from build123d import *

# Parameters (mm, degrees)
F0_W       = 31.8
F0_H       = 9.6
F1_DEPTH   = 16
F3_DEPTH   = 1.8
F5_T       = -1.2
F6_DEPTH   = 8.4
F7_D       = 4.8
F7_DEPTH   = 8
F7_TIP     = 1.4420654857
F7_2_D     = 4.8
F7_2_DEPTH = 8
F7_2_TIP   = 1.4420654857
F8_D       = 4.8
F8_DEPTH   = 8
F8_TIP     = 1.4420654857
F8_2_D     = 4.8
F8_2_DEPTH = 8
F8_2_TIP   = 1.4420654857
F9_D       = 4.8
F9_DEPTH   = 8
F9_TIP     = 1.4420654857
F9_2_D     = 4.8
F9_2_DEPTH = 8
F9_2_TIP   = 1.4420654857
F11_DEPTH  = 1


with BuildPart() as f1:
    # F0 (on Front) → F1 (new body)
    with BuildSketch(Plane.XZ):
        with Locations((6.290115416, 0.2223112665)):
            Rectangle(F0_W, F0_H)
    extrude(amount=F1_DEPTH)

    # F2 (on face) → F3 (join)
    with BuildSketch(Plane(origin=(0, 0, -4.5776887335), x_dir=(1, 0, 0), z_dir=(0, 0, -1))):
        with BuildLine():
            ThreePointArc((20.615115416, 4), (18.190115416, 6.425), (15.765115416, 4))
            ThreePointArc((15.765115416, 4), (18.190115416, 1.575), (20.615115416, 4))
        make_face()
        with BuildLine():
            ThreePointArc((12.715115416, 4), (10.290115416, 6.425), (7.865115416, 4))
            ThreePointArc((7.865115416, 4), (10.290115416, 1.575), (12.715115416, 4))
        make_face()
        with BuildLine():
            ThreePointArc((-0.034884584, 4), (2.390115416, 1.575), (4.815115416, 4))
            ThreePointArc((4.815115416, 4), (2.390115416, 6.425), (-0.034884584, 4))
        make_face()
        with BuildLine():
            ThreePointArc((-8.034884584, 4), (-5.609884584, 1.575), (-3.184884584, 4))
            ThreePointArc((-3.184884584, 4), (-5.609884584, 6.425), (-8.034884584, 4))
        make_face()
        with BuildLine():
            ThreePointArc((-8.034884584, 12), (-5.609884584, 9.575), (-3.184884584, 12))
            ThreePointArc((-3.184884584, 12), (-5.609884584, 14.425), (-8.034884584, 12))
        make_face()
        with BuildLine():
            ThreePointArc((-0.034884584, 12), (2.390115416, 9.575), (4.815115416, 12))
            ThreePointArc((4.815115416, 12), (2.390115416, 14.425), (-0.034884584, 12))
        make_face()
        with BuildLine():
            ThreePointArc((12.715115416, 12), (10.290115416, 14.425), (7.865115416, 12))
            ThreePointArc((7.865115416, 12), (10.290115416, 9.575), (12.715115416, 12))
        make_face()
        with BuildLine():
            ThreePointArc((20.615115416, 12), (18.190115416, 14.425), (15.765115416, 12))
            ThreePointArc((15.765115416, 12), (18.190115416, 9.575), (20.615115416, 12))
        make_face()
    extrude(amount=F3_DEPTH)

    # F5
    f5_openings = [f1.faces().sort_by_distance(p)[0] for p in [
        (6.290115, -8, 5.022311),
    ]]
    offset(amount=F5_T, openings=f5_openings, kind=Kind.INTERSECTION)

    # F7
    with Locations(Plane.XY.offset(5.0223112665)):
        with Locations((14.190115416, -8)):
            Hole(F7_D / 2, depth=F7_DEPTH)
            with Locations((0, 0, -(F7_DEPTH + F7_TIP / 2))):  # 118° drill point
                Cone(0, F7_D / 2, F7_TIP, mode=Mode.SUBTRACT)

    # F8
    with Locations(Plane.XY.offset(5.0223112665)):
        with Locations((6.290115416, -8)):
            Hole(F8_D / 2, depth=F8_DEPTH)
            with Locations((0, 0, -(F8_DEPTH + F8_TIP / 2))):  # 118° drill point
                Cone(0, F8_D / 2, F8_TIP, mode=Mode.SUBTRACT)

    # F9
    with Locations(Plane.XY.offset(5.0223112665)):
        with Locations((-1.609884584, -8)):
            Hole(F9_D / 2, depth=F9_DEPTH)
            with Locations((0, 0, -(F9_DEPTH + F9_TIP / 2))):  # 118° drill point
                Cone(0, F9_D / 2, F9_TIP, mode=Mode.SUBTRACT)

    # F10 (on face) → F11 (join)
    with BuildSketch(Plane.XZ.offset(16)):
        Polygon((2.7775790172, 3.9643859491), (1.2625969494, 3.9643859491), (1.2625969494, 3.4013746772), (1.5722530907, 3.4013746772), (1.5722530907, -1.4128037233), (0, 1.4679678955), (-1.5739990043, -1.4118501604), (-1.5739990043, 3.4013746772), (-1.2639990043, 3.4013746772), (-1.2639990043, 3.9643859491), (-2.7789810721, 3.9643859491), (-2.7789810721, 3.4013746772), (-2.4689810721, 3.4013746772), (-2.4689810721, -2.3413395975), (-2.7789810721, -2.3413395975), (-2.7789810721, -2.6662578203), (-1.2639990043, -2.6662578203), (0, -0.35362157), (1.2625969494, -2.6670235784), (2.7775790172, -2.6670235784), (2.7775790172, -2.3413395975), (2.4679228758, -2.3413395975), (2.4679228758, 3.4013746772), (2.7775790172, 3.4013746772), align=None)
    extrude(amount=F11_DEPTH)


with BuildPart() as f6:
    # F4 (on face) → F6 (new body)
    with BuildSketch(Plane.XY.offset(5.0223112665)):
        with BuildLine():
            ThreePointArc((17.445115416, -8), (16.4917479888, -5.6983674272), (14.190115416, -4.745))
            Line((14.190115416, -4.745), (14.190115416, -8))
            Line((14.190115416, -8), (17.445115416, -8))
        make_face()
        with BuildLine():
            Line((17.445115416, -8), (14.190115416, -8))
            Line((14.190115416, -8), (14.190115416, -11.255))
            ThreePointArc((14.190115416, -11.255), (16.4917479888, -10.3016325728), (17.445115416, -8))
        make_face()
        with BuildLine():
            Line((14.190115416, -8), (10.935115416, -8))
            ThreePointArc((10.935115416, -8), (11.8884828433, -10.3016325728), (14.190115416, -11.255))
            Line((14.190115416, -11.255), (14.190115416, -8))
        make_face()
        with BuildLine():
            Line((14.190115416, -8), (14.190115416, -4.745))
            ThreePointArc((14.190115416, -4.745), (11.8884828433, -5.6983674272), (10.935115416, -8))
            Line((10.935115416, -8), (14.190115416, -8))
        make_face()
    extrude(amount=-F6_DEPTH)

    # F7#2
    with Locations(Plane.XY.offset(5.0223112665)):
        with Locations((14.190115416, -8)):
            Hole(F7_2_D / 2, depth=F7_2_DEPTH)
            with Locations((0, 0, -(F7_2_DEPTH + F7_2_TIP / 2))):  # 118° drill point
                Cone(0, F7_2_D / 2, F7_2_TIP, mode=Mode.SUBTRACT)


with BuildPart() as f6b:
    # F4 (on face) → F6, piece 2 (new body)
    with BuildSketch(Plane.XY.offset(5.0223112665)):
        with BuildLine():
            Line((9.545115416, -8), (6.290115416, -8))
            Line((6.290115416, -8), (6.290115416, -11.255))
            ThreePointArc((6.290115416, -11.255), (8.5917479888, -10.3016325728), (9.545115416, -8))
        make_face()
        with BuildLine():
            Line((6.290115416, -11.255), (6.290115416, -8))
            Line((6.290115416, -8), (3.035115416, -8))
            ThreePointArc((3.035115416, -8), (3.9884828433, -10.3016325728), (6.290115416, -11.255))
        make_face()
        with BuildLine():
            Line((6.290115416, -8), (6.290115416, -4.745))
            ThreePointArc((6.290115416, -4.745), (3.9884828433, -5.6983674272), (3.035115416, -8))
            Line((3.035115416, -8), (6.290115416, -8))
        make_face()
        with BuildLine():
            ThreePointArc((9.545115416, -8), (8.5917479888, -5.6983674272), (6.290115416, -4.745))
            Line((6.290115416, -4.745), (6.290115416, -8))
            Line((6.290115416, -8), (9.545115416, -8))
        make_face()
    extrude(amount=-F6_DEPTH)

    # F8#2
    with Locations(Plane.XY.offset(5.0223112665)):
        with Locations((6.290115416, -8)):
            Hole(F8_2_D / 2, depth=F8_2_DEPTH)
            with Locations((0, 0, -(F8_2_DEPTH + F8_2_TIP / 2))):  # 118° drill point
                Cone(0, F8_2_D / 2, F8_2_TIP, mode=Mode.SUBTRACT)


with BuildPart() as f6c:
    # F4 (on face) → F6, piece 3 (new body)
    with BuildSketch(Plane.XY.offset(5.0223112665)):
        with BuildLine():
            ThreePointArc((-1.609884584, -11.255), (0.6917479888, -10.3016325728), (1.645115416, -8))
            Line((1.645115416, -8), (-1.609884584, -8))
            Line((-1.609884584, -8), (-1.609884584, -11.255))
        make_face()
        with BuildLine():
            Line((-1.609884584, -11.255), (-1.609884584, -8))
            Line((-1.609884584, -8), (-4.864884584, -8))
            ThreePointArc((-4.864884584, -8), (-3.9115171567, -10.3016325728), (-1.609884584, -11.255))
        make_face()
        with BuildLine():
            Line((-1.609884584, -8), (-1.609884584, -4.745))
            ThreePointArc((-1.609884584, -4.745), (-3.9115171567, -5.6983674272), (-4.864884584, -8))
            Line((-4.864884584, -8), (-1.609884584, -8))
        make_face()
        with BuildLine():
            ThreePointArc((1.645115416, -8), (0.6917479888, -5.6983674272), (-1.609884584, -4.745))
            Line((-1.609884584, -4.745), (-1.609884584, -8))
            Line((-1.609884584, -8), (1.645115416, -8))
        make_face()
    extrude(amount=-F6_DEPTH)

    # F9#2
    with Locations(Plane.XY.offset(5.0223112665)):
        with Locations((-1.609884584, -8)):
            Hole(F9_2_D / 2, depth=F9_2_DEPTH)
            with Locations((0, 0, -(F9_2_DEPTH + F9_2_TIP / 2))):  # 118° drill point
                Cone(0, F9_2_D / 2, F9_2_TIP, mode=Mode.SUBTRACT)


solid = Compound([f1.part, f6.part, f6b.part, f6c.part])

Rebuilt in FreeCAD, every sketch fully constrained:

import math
import FreeCAD as App
import Part
import Sketcher
from FreeCAD import Vector


def faces_at(feature, points):
    """Names of the faces that lie closest to the given points."""
    faces = feature.Shape.Faces
    near = lambda p: min(range(len(faces)), key=lambda i: faces[i].distToShape(Part.Vertex(*p))[0])
    return sorted({f"Face{near(p) + 1}" for p in points})


def add_polygon(sketch, points):
    """Adds a closed chain of lines whose ends are joined by coincident constraints."""
    first, n = sketch.GeometryCount, len(points)
    for a, b in zip(points, points[1:] + points[:1]):
        sketch.addGeometry(Part.LineSegment(App.Vector(*a, 0), App.Vector(*b, 0)), False)
    for i in range(n):
        sketch.addConstraint(Sketcher.Constraint("Coincident", first + i, 2, first + (i + 1) % n, 1))

doc = App.newDocument("Part")
body = doc.addObject("PartDesign::Body", "Body")

# Sketch on XZ plane
sketch1 = body.newObject("Sketcher::SketchObject", "Sketch")
sketch1.AttachmentSupport = (doc.getObject("XZ_Plane"), [""])
sketch1.MapMode = "FlatFace"
add_polygon(sketch1, [(-10, 5), (-10, -5), (22, -5), (22, 5)])  # lines 0-3
sketch1.addConstraint(Sketcher.Constraint("Vertical", 0))
sketch1.addConstraint(Sketcher.Constraint("Horizontal", 1))
sketch1.addConstraint(Sketcher.Constraint("Vertical", 2))
sketch1.addConstraint(Sketcher.Constraint("Horizontal", 3))
sketch1.addConstraint(Sketcher.Constraint("DistanceX", 1, 1, 1, 2, 31.8))
sketch1.addConstraint(Sketcher.Constraint("DistanceY", 0, 2, 0, 1, 9.6))
sketch1.addConstraint(Sketcher.Constraint("DistanceY", 0, 2, -1, 1, 4.577689))
sketch1.addConstraint(Sketcher.Constraint("DistanceX", 0, 2, -1, 1, 9.609885))
pad1 = body.newObject("PartDesign::Pad", "Pad")
pad1.Profile = sketch1
pad1.Length = 16

# Sketch on XY plane
sketch2 = body.newObject("Sketcher::SketchObject", "Sketch001")
sketch2.AttachmentSupport = (doc.getObject("XY_Plane"), [""])
sketch2.MapMode = "FlatFace"
sketch2.AttachmentOffset = App.Placement(Vector(0, 0, -4.577689), App.Rotation())
sketch2.addGeometry(Part.Circle(Vector(18.2, -4, 0), Vector(0, 0, 1), 2.4), False)
sketch2.addGeometry(Part.Circle(Vector(10.3, -4, 0), Vector(0, 0, 1), 2.4), False)
sketch2.addGeometry(Part.Circle(Vector(2.4, -4, 0), Vector(0, 0, 1), 2.4), False)
sketch2.addGeometry(Part.Circle(Vector(-5.6, -4, 0), Vector(0, 0, 1), 2.4), False)
sketch2.addGeometry(Part.Circle(Vector(-5.6, -12, 0), Vector(0, 0, 1), 2.4), False)
sketch2.addGeometry(Part.Circle(Vector(2.4, -12, 0), Vector(0, 0, 1), 2.4), False)
sketch2.addGeometry(Part.Circle(Vector(10.3, -12, 0), Vector(0, 0, 1), 2.4), False)
sketch2.addGeometry(Part.Circle(Vector(18.2, -12, 0), Vector(0, 0, 1), 2.4), False)
sketch2.addConstraint(Sketcher.Constraint("Equal", 0, 1))
sketch2.addConstraint(Sketcher.Constraint("Equal", 1, 2))
sketch2.addConstraint(Sketcher.Constraint("Equal", 2, 3))
sketch2.addConstraint(Sketcher.Constraint("Equal", 3, 4))
sketch2.addConstraint(Sketcher.Constraint("Equal", 4, 5))
sketch2.addConstraint(Sketcher.Constraint("Equal", 5, 6))
sketch2.addConstraint(Sketcher.Constraint("Equal", 6, 7))
sketch2.addConstraint(Sketcher.Constraint("Horizontal", 0, 3, 1, 3))
sketch2.addConstraint(Sketcher.Constraint("Horizontal", 1, 3, 2, 3))
sketch2.addConstraint(Sketcher.Constraint("Horizontal", 2, 3, 3, 3))
sketch2.addConstraint(Sketcher.Constraint("Horizontal", 4, 3, 5, 3))
sketch2.addConstraint(Sketcher.Constraint("Horizontal", 5, 3, 6, 3))
sketch2.addConstraint(Sketcher.Constraint("Horizontal", 6, 3, 7, 3))
sketch2.addConstraint(Sketcher.Constraint("Vertical", 3, 3, 4, 3))
sketch2.addConstraint(Sketcher.Constraint("Vertical", 2, 3, 5, 3))
sketch2.addConstraint(Sketcher.Constraint("Vertical", 1, 3, 6, 3))
sketch2.addConstraint(Sketcher.Constraint("Vertical", 0, 3, 7, 3))
sketch2.addConstraint(Sketcher.Constraint("Diameter", 0, 4.85))
sketch2.addConstraint(Sketcher.Constraint("DistanceY", 0, 3, -1, 1, 4.0))
sketch2.addConstraint(Sketcher.Constraint("DistanceY", 4, 3, -1, 1, 12.0))
sketch2.addConstraint(Sketcher.Constraint("DistanceX", 3, 3, 2, 3, 8.0))
sketch2.addConstraint(Sketcher.Constraint("DistanceX", 1, 3, 0, 3, 7.9))
sketch2.addConstraint(Sketcher.Constraint("DistanceX", 2, 3, 1, 3, 7.9))
sketch2.addConstraint(Sketcher.Constraint("DistanceX", -1, 1, 0, 3, 18.190115))
pad2 = body.newObject("PartDesign::Pad", "Pad001")
pad2.Profile = sketch2
pad2.Length = 1.8
pad2.Reversed = True
doc.recompute()

thickness = body.newObject("PartDesign::Thickness", "Thickness")
thickness.Base = (pad2, faces_at(pad2, [(6.29, -8, 5.022)]))
thickness.Value = 1.2
thickness.Reversed = True
thickness.Join = "Intersection"

# Sketch on XY plane
sketch3 = body.newObject("Sketcher::SketchObject", "Sketch002")
sketch3.AttachmentSupport = (doc.getObject("XY_Plane"), [""])
sketch3.MapMode = "FlatFace"
sketch3.AttachmentOffset = App.Placement(Vector(0, 0, 5.022311), App.Rotation())
sketch3.addGeometry(Part.Circle(Vector(14.2, -8, 0), Vector(0, 0, 1), 2.4), False)
sketch3.addConstraint(Sketcher.Constraint("Diameter", 0, 4.8))
sketch3.addConstraint(Sketcher.Constraint("DistanceY", 0, 3, -1, 1, 8.0))
sketch3.addConstraint(Sketcher.Constraint("DistanceX", -1, 1, 0, 3, 14.190115))
doc.recompute()
hole = body.newObject("PartDesign::Hole", "Hole")
hole.Profile = sketch3
hole.ThreadType = "None"
hole.Diameter = 4.8
hole.DepthType = "Dimension"
hole.Depth = 8
hole.DrillPoint = "Angled"
hole.DrillPointAngle = 118

# Sketch on XY plane
sketch4 = body.newObject("Sketcher::SketchObject", "Sketch003")
sketch4.AttachmentSupport = (doc.getObject("XY_Plane"), [""])
sketch4.MapMode = "FlatFace"
sketch4.AttachmentOffset = App.Placement(Vector(0, 0, 5.022311), App.Rotation())
sketch4.addGeometry(Part.Circle(Vector(6.3, -8, 0), Vector(0, 0, 1), 2.4), False)
sketch4.addConstraint(Sketcher.Constraint("Diameter", 0, 4.8))
sketch4.addConstraint(Sketcher.Constraint("DistanceY", 0, 3, -1, 1, 8.0))
sketch4.addConstraint(Sketcher.Constraint("DistanceX", -1, 1, 0, 3, 6.290115))
doc.recompute()
hole2 = body.newObject("PartDesign::Hole", "Hole001")
hole2.Profile = sketch4
hole2.ThreadType = "None"
hole2.Diameter = 4.8
hole2.DepthType = "Dimension"
hole2.Depth = 8
hole2.DrillPoint = "Angled"
hole2.DrillPointAngle = 118

# Sketch on XY plane
sketch5 = body.newObject("Sketcher::SketchObject", "Sketch004")
sketch5.AttachmentSupport = (doc.getObject("XY_Plane"), [""])
sketch5.MapMode = "FlatFace"
sketch5.AttachmentOffset = App.Placement(Vector(0, 0, 5.022311), App.Rotation())
sketch5.addGeometry(Part.Circle(Vector(-1.6, -8, 0), Vector(0, 0, 1), 2.4), False)
sketch5.addConstraint(Sketcher.Constraint("Diameter", 0, 4.8))
sketch5.addConstraint(Sketcher.Constraint("DistanceY", 0, 3, -1, 1, 8.0))
sketch5.addConstraint(Sketcher.Constraint("DistanceX", 0, 3, -1, 1, 1.609885))
doc.recompute()
hole3 = body.newObject("PartDesign::Hole", "Hole002")
hole3.Profile = sketch5
hole3.ThreadType = "None"
hole3.Diameter = 4.8
hole3.DepthType = "Dimension"
hole3.Depth = 8
hole3.DrillPoint = "Angled"
hole3.DrillPointAngle = 118

# Sketch on XZ plane
sketch6 = body.newObject("Sketcher::SketchObject", "Sketch005")
sketch6.AttachmentSupport = (doc.getObject("XZ_Plane"), [""])
sketch6.MapMode = "FlatFace"
sketch6.AttachmentOffset = App.Placement(Vector(0, 0, 16), App.Rotation())
add_polygon(sketch6, [(2.78, 3.96), (1.26, 3.96), (1.26, 3.4), (1.57, 3.4), (1.57, -1.41), (0, 1.47), (-1.57, -1.41), (-1.57, 3.4), (-1.26, 3.4), (-1.26, 3.96), (-2.78, 3.96), (-2.78, 3.4), (-2.47, 3.4), (-2.47, -2.34), (-2.78, -2.34), (-2.78, -2.67), (-1.26, -2.67), (0, -0.35), (1.26, -2.67), (2.78, -2.67), (2.78, -2.34), (2.47, -2.34), (2.47, 3.4), (2.78, 3.4)])  # lines 0-23
sketch6.addConstraint(Sketcher.Constraint("Horizontal", 0))
sketch6.addConstraint(Sketcher.Constraint("Vertical", 1))
sketch6.addConstraint(Sketcher.Constraint("Horizontal", 2))
sketch6.addConstraint(Sketcher.Constraint("Vertical", 3))
sketch6.addConstraint(Sketcher.Constraint("Vertical", 6))
sketch6.addConstraint(Sketcher.Constraint("Horizontal", 7))
sketch6.addConstraint(Sketcher.Constraint("Vertical", 8))
sketch6.addConstraint(Sketcher.Constraint("Horizontal", 9))
sketch6.addConstraint(Sketcher.Constraint("Vertical", 10))
sketch6.addConstraint(Sketcher.Constraint("Horizontal", 11))
sketch6.addConstraint(Sketcher.Constraint("Vertical", 12))
sketch6.addConstraint(Sketcher.Constraint("Horizontal", 13))
sketch6.addConstraint(Sketcher.Constraint("Vertical", 14))
sketch6.addConstraint(Sketcher.Constraint("Horizontal", 15))
sketch6.addConstraint(Sketcher.Constraint("Horizontal", 18))
sketch6.addConstraint(Sketcher.Constraint("Vertical", 19))
sketch6.addConstraint(Sketcher.Constraint("Horizontal", 20))
sketch6.addConstraint(Sketcher.Constraint("Vertical", 21))
sketch6.addConstraint(Sketcher.Constraint("Horizontal", 22))
sketch6.addConstraint(Sketcher.Constraint("Vertical", 23))
sketch6.addConstraint(Sketcher.Constraint("PointOnObject", 4, 2, -2))
sketch6.addConstraint(Sketcher.Constraint("PointOnObject", 16, 2, -2))
sketch6.addConstraint(Sketcher.Constraint("Parallel", 5, 16))
sketch6.addConstraint(Sketcher.Constraint("Parallel", 4, 17))
sketch6.addConstraint(Sketcher.Constraint("Horizontal", 2, 2, 6, 2))
sketch6.addConstraint(Sketcher.Constraint("Horizontal", 0, 2, 8, 2))
sketch6.addConstraint(Sketcher.Constraint("Horizontal", 7, 2, 10, 2))
sketch6.addConstraint(Sketcher.Constraint("Horizontal", 13, 2, 19, 2))
sketch6.addConstraint(Sketcher.Constraint("Horizontal", 11, 2, 21, 2))
sketch6.addConstraint(Sketcher.Constraint("Vertical", 10, 2, 13, 2))
sketch6.addConstraint(Sketcher.Constraint("Vertical", 8, 2, 15, 2))
sketch6.addConstraint(Sketcher.Constraint("Vertical", 1, 2, 17, 2))
sketch6.addConstraint(Sketcher.Constraint("Vertical", 19, 2, 22, 2))
sketch6.addConstraint(Sketcher.Constraint("Equal", 0, 9))
sketch6.addConstraint(Sketcher.Constraint("Equal", 7, 11))
sketch6.addConstraint(Sketcher.Constraint("Equal", 2, 20))
sketch6.addConstraint(Sketcher.Constraint("Equal", 4, 5))
sketch6.addConstraint(Sketcher.Constraint("Equal", 16, 17))
sketch6.addConstraint(Sketcher.Constraint("DistanceX", 7, 1, 7, 2, 0.31))
sketch6.addConstraint(Sketcher.Constraint("DistanceX", 5, 2, -1, 1, 1.573999))
sketch6.addConstraint(Sketcher.Constraint("DistanceY", 1, 2, 1, 1, 0.563011))
sketch6.addConstraint(Sketcher.Constraint("DistanceY", 3, 2, 3, 1, 4.814178))
sketch6.addConstraint(Sketcher.Constraint("DistanceY", 14, 2, 14, 1, 0.324918))
sketch6.addConstraint(Sketcher.Constraint("DistanceX", 0, 2, 0, 1, 1.514982))
sketch6.addConstraint(Sketcher.Constraint("DistanceX", 2, 1, 2, 2, 0.309656))
sketch6.addConstraint(Sketcher.Constraint("DistanceY", 12, 2, 12, 1, 5.742714))
sketch6.addConstraint(Sketcher.Constraint("DistanceY", 5, 2, -1, 1, 1.41185))
sketch6.addConstraint(Sketcher.Constraint("DistanceY", 16, 2, -1, 1, 0.353622))
pad3 = body.newObject("PartDesign::Pad", "Pad002")
pad3.Profile = sketch6
pad3.Length = 1
body2 = doc.addObject("PartDesign::Body", "Body001")

# Sketch on XY plane
sketch7 = body2.newObject("Sketcher::SketchObject", "Sketch006")
sketch7.AttachmentSupport = (doc.getObject("XY_Plane001"), [""])
sketch7.MapMode = "FlatFace"
sketch7.AttachmentOffset = App.Placement(Vector(0, 0, 5.022311), App.Rotation())
sketch7.addGeometry(Part.ArcOfCircle(Part.Circle(Vector(14.2, -8, 0), Vector(0, 0, 1), 3.3), math.radians(0), math.radians(90)), False)
sketch7.addGeometry(Part.ArcOfCircle(Part.Circle(Vector(14.2, -8, 0), Vector(0, 0, 1), 3.3), math.radians(90), math.radians(180)), False)
sketch7.addGeometry(Part.ArcOfCircle(Part.Circle(Vector(14.2, -8, 0), Vector(0, 0, 1), 3.3), math.radians(180), math.radians(270)), False)
sketch7.addGeometry(Part.ArcOfCircle(Part.Circle(Vector(14.2, -8, 0), Vector(0, 0, 1), 3.3), math.radians(-90), math.radians(0)), False)
sketch7.addConstraint(Sketcher.Constraint("Tangent", 0, 2, 1, 1))
sketch7.addConstraint(Sketcher.Constraint("Tangent", 1, 2, 2, 1))
sketch7.addConstraint(Sketcher.Constraint("Tangent", 2, 2, 3, 1))
sketch7.addConstraint(Sketcher.Constraint("Tangent", 3, 2, 0, 1))
sketch7.addConstraint(Sketcher.Constraint("Equal", 0, 1))
sketch7.addConstraint(Sketcher.Constraint("Horizontal", 3, 3, 1, 2))
sketch7.addConstraint(Sketcher.Constraint("Horizontal", 1, 2, 3, 2))
sketch7.addConstraint(Sketcher.Constraint("Vertical", 3, 3, 0, 2))
sketch7.addConstraint(Sketcher.Constraint("Vertical", 0, 2, 2, 2))
sketch7.addConstraint(Sketcher.Constraint("DistanceY", 0, 3, -1, 1, 8.0))
sketch7.addConstraint(Sketcher.Constraint("Radius", 0, 3.255))
sketch7.addConstraint(Sketcher.Constraint("DistanceX", -1, 1, 0, 3, 14.190115))
pad4 = body2.newObject("PartDesign::Pad", "Pad003")
pad4.Profile = sketch7
pad4.Length = 8.4
pad4.Reversed = True

# Sketch on XY plane
sketch8 = body2.newObject("Sketcher::SketchObject", "Sketch007")
sketch8.AttachmentSupport = (doc.getObject("XY_Plane001"), [""])
sketch8.MapMode = "FlatFace"
sketch8.AttachmentOffset = App.Placement(Vector(0, 0, 5.022311), App.Rotation())
sketch8.addGeometry(Part.Circle(Vector(14.2, -8, 0), Vector(0, 0, 1), 2.4), False)
sketch8.addConstraint(Sketcher.Constraint("Diameter", 0, 4.8))
sketch8.addConstraint(Sketcher.Constraint("DistanceY", 0, 3, -1, 1, 8.0))
sketch8.addConstraint(Sketcher.Constraint("DistanceX", -1, 1, 0, 3, 14.190115))
doc.recompute()
hole4 = body2.newObject("PartDesign::Hole", "Hole003")
hole4.Profile = sketch8
hole4.ThreadType = "None"
hole4.Diameter = 4.8
hole4.DepthType = "Dimension"
hole4.Depth = 8
hole4.DrillPoint = "Angled"
hole4.DrillPointAngle = 118
body3 = doc.addObject("PartDesign::Body", "Body002")

# Sketch on XY plane
sketch9 = body3.newObject("Sketcher::SketchObject", "Sketch008")
sketch9.AttachmentSupport = (doc.getObject("XY_Plane002"), [""])
sketch9.MapMode = "FlatFace"
sketch9.AttachmentOffset = App.Placement(Vector(0, 0, 5.022311), App.Rotation())
sketch9.addGeometry(Part.ArcOfCircle(Part.Circle(Vector(6.3, -8, 0), Vector(0, 0, 1), 3.3), math.radians(90), math.radians(180)), False)
sketch9.addGeometry(Part.ArcOfCircle(Part.Circle(Vector(6.3, -8, 0), Vector(0, 0, 1), 3.3), math.radians(180), math.radians(270)), False)
sketch9.addGeometry(Part.ArcOfCircle(Part.Circle(Vector(6.3, -8, 0), Vector(0, 0, 1), 3.3), math.radians(-90), math.radians(0)), False)
sketch9.addGeometry(Part.ArcOfCircle(Part.Circle(Vector(6.3, -8, 0), Vector(0, 0, 1), 3.3), math.radians(0), math.radians(90)), False)
sketch9.addConstraint(Sketcher.Constraint("Tangent", 0, 2, 1, 1))
sketch9.addConstraint(Sketcher.Constraint("Tangent", 1, 2, 2, 1))
sketch9.addConstraint(Sketcher.Constraint("Tangent", 2, 2, 3, 1))
sketch9.addConstraint(Sketcher.Constraint("Tangent", 3, 2, 0, 1))
sketch9.addConstraint(Sketcher.Constraint("Equal", 0, 1))
sketch9.addConstraint(Sketcher.Constraint("Horizontal", 3, 3, 0, 2))
sketch9.addConstraint(Sketcher.Constraint("Horizontal", 0, 2, 2, 2))
sketch9.addConstraint(Sketcher.Constraint("Vertical", 3, 3, 1, 2))
sketch9.addConstraint(Sketcher.Constraint("Vertical", 1, 2, 3, 2))
sketch9.addConstraint(Sketcher.Constraint("DistanceY", 0, 3, -1, 1, 8.0))
sketch9.addConstraint(Sketcher.Constraint("Radius", 0, 3.255))
sketch9.addConstraint(Sketcher.Constraint("DistanceX", -1, 1, 0, 3, 6.290115))
pad5 = body3.newObject("PartDesign::Pad", "Pad004")
pad5.Profile = sketch9
pad5.Length = 8.4
pad5.Reversed = True

# Sketch on XY plane
sketch10 = body3.newObject("Sketcher::SketchObject", "Sketch009")
sketch10.AttachmentSupport = (doc.getObject("XY_Plane002"), [""])
sketch10.MapMode = "FlatFace"
sketch10.AttachmentOffset = App.Placement(Vector(0, 0, 5.022311), App.Rotation())
sketch10.addGeometry(Part.Circle(Vector(6.3, -8, 0), Vector(0, 0, 1), 2.4), False)
sketch10.addConstraint(Sketcher.Constraint("Diameter", 0, 4.8))
sketch10.addConstraint(Sketcher.Constraint("DistanceY", 0, 3, -1, 1, 8.0))
sketch10.addConstraint(Sketcher.Constraint("DistanceX", -1, 1, 0, 3, 6.290115))
doc.recompute()
hole5 = body3.newObject("PartDesign::Hole", "Hole004")
hole5.Profile = sketch10
hole5.ThreadType = "None"
hole5.Diameter = 4.8
hole5.DepthType = "Dimension"
hole5.Depth = 8
hole5.DrillPoint = "Angled"
hole5.DrillPointAngle = 118
body4 = doc.addObject("PartDesign::Body", "Body003")

# Sketch on XY plane
sketch11 = body4.newObject("Sketcher::SketchObject", "Sketch010")
sketch11.AttachmentSupport = (doc.getObject("XY_Plane003"), [""])
sketch11.MapMode = "FlatFace"
sketch11.AttachmentOffset = App.Placement(Vector(0, 0, 5.022311), App.Rotation())
sketch11.addGeometry(Part.ArcOfCircle(Part.Circle(Vector(-1.6, -8, 0), Vector(0, 0, 1), 3.3), math.radians(-90), math.radians(0)), False)
sketch11.addGeometry(Part.ArcOfCircle(Part.Circle(Vector(-1.6, -8, 0), Vector(0, 0, 1), 3.3), math.radians(0), math.radians(90)), False)
sketch11.addGeometry(Part.ArcOfCircle(Part.Circle(Vector(-1.6, -8, 0), Vector(0, 0, 1), 3.3), math.radians(90), math.radians(180)), False)
sketch11.addGeometry(Part.ArcOfCircle(Part.Circle(Vector(-1.6, -8, 0), Vector(0, 0, 1), 3.3), math.radians(180), math.radians(270)), False)
sketch11.addConstraint(Sketcher.Constraint("Tangent", 0, 2, 1, 1))
sketch11.addConstraint(Sketcher.Constraint("Tangent", 1, 2, 2, 1))
sketch11.addConstraint(Sketcher.Constraint("Tangent", 2, 2, 3, 1))
sketch11.addConstraint(Sketcher.Constraint("Tangent", 3, 2, 0, 1))
sketch11.addConstraint(Sketcher.Constraint("Equal", 0, 1))
sketch11.addConstraint(Sketcher.Constraint("Horizontal", 3, 3, 0, 2))
sketch11.addConstraint(Sketcher.Constraint("Horizontal", 0, 2, 2, 2))
sketch11.addConstraint(Sketcher.Constraint("Vertical", 3, 3, 1, 2))
sketch11.addConstraint(Sketcher.Constraint("Vertical", 1, 2, 3, 2))
sketch11.addConstraint(Sketcher.Constraint("DistanceY", 0, 3, -1, 1, 8.0))
sketch11.addConstraint(Sketcher.Constraint("Radius", 0, 3.255))
sketch11.addConstraint(Sketcher.Constraint("DistanceX", 0, 3, -1, 1, 1.609885))
pad6 = body4.newObject("PartDesign::Pad", "Pad005")
pad6.Profile = sketch11
pad6.Length = 8.4
pad6.Reversed = True

# Sketch on XY plane
sketch12 = body4.newObject("Sketcher::SketchObject", "Sketch011")
sketch12.AttachmentSupport = (doc.getObject("XY_Plane003"), [""])
sketch12.MapMode = "FlatFace"
sketch12.AttachmentOffset = App.Placement(Vector(0, 0, 5.022311), App.Rotation())
sketch12.addGeometry(Part.Circle(Vector(-1.6, -8, 0), Vector(0, 0, 1), 2.4), False)
sketch12.addConstraint(Sketcher.Constraint("Diameter", 0, 4.8))
sketch12.addConstraint(Sketcher.Constraint("DistanceY", 0, 3, -1, 1, 8.0))
sketch12.addConstraint(Sketcher.Constraint("DistanceX", 0, 3, -1, 1, 1.609885))
doc.recompute()
hole6 = body4.newObject("PartDesign::Hole", "Hole005")
hole6.Profile = sketch12
hole6.ThreadType = "None"
hole6.Diameter = 4.8
hole6.DepthType = "Dimension"
hole6.Depth = 8
hole6.DrillPoint = "Angled"
hole6.DrillPointAngle = 118

doc.recompute()
